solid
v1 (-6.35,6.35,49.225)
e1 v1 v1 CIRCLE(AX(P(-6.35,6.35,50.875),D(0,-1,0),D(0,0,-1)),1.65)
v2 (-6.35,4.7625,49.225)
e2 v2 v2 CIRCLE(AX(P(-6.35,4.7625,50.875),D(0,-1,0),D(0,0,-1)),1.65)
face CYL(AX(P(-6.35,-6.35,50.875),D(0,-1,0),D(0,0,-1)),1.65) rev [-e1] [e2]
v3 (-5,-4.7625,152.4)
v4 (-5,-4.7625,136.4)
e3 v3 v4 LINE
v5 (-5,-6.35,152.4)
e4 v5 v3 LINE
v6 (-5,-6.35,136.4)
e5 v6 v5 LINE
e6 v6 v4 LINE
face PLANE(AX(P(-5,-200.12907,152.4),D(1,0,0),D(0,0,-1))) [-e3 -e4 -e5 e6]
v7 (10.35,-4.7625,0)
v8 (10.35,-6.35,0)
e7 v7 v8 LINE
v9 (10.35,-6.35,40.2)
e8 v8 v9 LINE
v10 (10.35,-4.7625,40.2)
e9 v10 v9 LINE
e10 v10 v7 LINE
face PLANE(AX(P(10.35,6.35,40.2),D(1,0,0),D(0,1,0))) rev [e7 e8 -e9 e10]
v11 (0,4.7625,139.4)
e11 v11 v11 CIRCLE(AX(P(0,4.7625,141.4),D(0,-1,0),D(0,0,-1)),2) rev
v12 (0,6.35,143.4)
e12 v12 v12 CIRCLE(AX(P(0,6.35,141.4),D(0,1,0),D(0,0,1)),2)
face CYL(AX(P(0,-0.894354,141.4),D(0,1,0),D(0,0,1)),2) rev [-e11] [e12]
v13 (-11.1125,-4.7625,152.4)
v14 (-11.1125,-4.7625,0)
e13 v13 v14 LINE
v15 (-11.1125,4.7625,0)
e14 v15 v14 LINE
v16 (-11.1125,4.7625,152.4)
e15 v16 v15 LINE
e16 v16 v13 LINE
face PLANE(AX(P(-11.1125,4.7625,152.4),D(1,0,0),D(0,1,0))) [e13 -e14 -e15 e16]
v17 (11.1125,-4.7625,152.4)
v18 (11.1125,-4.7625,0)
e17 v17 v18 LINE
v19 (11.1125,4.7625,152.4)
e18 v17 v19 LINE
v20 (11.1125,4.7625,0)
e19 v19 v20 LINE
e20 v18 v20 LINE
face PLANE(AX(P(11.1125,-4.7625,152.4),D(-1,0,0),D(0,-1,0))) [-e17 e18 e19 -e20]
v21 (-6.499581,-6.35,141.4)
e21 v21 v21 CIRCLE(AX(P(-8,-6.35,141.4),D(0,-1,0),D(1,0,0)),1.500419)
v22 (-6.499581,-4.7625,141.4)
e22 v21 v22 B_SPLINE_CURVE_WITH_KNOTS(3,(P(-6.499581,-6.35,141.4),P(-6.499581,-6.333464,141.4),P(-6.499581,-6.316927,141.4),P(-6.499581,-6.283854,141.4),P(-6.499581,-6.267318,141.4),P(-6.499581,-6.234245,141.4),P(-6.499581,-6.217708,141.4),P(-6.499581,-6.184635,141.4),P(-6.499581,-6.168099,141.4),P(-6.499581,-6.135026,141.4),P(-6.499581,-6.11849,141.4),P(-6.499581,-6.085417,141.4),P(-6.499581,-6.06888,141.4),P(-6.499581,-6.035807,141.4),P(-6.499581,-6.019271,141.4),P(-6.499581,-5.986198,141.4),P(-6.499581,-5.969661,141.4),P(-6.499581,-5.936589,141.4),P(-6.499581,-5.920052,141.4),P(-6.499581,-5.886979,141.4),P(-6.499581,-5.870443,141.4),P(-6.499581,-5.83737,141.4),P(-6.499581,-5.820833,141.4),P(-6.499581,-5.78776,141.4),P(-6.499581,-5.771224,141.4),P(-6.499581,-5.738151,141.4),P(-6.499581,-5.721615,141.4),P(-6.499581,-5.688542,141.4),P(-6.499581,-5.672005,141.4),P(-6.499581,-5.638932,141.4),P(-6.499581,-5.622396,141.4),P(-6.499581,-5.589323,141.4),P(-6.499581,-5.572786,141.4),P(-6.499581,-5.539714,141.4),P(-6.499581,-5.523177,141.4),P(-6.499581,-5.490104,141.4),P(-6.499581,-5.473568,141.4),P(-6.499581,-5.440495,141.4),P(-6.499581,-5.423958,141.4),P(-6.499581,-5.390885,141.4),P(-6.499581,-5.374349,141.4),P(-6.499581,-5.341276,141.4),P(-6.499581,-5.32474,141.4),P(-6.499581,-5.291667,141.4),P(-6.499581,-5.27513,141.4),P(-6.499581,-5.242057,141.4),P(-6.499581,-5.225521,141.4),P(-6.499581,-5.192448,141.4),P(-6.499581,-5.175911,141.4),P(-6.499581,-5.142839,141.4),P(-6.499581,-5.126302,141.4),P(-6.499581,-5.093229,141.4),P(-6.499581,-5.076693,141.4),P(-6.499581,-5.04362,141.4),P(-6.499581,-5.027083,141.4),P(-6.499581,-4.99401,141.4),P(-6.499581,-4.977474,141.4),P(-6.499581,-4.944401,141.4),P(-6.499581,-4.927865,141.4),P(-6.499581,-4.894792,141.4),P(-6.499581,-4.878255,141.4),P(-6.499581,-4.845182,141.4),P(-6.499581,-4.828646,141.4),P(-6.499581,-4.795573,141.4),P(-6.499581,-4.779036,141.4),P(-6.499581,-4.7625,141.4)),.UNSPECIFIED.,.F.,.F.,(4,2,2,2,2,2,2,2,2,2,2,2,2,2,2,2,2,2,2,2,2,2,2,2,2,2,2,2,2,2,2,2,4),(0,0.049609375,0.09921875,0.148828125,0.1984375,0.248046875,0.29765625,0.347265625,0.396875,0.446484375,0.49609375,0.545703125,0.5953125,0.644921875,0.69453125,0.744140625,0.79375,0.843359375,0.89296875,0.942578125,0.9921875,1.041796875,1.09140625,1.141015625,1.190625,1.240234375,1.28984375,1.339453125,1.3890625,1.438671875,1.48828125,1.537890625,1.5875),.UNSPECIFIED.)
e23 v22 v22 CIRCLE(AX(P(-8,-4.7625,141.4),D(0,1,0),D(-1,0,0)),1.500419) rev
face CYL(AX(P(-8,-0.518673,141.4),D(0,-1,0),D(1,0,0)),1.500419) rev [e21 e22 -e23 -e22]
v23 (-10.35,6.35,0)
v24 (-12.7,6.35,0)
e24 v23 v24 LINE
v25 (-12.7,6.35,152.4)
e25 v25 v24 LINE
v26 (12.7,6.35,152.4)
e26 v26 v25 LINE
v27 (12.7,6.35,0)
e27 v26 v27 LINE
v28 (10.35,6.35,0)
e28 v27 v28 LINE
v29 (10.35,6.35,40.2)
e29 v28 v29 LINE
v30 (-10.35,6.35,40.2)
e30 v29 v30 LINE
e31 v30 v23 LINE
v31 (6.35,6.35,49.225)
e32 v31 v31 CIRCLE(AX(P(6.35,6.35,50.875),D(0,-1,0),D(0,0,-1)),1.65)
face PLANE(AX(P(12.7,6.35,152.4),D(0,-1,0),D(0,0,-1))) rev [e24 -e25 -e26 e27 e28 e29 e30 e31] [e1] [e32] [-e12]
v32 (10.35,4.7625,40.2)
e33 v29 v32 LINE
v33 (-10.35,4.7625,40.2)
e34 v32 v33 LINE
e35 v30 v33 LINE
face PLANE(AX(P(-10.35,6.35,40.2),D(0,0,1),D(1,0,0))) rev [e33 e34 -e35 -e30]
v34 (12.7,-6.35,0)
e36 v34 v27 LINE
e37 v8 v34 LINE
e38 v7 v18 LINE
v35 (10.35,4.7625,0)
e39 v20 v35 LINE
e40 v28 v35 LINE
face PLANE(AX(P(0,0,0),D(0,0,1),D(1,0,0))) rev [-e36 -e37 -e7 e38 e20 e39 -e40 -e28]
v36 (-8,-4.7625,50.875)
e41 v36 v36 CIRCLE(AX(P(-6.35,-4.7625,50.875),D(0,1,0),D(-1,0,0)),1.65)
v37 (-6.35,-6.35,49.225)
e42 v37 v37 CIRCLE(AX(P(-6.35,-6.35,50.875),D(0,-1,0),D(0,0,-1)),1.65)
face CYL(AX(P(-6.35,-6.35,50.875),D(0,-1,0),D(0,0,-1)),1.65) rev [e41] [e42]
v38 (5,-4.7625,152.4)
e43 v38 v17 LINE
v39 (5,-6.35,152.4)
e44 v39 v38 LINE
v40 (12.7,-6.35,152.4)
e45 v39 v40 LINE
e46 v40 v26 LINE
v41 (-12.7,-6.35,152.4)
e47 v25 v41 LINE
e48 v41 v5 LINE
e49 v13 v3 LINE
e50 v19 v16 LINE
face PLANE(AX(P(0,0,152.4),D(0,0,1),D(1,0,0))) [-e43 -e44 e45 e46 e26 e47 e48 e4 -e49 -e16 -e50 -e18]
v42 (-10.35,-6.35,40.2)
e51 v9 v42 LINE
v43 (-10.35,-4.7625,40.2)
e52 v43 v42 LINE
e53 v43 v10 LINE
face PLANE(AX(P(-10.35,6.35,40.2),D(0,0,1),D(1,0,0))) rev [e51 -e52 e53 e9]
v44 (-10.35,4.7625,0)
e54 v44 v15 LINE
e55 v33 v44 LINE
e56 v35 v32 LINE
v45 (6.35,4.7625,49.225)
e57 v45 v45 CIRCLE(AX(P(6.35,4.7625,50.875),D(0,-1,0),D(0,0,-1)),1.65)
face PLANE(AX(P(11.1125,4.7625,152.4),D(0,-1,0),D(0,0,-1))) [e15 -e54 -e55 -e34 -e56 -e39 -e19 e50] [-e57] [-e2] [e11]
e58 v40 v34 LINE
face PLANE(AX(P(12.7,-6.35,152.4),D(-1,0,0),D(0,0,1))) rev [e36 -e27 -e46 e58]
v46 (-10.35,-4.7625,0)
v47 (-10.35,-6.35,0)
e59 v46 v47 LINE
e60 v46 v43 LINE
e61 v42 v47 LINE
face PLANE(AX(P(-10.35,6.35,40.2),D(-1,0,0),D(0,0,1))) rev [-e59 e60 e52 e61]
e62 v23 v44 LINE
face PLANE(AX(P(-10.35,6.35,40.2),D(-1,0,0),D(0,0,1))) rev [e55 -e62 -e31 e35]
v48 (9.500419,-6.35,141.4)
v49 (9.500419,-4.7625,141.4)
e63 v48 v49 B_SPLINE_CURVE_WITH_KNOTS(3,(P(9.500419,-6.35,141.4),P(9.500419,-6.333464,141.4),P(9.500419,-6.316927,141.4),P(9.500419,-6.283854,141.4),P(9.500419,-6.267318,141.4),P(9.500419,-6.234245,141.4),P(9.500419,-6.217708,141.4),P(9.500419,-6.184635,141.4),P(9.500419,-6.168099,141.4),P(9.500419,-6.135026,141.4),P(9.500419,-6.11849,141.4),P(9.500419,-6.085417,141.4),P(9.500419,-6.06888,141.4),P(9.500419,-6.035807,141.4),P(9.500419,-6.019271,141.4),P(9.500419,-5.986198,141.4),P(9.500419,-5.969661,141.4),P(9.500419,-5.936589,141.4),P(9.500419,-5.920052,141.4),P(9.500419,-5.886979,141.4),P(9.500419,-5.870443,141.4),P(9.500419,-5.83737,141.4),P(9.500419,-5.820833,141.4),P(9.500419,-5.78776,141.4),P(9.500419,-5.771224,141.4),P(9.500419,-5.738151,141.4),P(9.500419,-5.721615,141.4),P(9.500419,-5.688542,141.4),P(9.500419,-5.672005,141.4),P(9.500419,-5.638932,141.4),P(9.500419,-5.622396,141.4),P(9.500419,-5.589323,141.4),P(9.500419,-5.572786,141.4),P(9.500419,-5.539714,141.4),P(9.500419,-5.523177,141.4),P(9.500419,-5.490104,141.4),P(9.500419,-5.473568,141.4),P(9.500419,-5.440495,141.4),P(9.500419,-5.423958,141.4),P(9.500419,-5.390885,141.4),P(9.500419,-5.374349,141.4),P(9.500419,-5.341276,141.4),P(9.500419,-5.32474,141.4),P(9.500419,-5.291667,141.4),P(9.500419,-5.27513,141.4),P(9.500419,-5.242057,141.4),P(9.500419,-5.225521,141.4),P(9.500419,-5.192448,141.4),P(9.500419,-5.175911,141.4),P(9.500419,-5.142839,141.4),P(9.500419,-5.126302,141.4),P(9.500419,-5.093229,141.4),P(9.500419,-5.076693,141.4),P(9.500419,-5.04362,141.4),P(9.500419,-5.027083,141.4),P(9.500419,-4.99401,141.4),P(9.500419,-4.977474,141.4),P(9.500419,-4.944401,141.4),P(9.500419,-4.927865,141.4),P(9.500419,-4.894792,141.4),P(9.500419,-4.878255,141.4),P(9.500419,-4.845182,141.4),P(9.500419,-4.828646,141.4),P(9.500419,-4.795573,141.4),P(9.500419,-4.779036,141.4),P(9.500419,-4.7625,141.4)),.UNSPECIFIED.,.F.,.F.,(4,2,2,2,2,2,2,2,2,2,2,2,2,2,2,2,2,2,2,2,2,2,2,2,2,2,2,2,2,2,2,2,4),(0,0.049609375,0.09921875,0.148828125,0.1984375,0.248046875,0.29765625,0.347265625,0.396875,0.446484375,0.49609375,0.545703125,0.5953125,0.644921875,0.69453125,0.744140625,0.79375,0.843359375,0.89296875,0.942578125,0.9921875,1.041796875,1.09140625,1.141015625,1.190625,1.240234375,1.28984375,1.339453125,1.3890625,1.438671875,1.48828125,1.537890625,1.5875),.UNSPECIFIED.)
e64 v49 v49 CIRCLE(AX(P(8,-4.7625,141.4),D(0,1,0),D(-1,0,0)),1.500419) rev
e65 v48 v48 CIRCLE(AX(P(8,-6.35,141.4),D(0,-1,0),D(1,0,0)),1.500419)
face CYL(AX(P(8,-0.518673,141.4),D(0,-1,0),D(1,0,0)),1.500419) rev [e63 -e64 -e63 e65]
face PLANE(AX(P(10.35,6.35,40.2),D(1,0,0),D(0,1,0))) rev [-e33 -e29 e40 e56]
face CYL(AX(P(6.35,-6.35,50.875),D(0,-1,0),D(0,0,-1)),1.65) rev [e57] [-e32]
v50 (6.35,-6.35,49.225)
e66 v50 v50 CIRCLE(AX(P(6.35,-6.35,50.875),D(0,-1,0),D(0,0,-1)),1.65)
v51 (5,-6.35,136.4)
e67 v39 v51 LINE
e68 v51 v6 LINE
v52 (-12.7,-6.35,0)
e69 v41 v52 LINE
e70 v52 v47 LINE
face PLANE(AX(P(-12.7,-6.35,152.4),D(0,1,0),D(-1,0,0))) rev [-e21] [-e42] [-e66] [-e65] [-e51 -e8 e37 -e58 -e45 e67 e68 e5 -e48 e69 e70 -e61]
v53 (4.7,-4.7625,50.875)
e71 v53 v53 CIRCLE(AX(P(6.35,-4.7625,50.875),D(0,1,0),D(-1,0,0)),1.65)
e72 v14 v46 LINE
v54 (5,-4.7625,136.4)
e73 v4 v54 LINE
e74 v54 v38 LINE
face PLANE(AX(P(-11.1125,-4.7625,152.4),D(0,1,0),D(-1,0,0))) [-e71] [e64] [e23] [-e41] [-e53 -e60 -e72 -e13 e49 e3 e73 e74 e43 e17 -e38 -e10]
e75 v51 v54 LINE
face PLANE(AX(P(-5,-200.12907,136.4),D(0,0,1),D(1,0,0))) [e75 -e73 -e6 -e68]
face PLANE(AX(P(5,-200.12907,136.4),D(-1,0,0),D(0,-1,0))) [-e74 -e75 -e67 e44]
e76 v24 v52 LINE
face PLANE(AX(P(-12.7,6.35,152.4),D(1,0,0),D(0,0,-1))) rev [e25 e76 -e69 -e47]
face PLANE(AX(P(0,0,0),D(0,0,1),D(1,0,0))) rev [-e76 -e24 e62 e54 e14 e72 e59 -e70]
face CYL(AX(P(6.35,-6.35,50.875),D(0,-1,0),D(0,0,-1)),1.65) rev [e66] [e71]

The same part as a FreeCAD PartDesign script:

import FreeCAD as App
import Part
import Sketcher
Q = App.Units.Quantity


def add_polygon(sketch, points):
    """Adds a closed chain of lines whose ends are joined by coincident constraints."""
    first, n = sketch.GeometryCount, len(points)
    for a, b in zip(points, points[1:] + points[:1]):
        sketch.addGeometry(Part.LineSegment(App.Vector(*a, 0), App.Vector(*b, 0)), False)
    for i in range(n):
        sketch.addConstraint(Sketcher.Constraint("Coincident", first + i, 2, first + (i + 1) % n, 1))

doc = App.newDocument("Part")
body = doc.addObject("PartDesign::Body", "Body")

# Sketch on XY plane
sketch1 = body.newObject("Sketcher::SketchObject", "Sketch")
sketch1.AttachmentSupport = (doc.getObject("XY_Plane"), [""])
sketch1.MapMode = "FlatFace"
add_polygon(sketch1, [(-12.7, 6.35), (-12.7, -6.35), (12.7, -6.35), (12.7, 6.35)])  # lines 0-3
add_polygon(sketch1, [(11.1125, -4.7625), (-11.1125, -4.7625), (-11.1125, 4.7625), (11.1125, 4.7625)])  # lines 4-7
sketch1.addConstraint(Sketcher.Constraint("Vertical", 0))
sketch1.addConstraint(Sketcher.Constraint("Horizontal", 1))
sketch1.addConstraint(Sketcher.Constraint("Vertical", 2))
sketch1.addConstraint(Sketcher.Constraint("Horizontal", 3))
sketch1.addConstraint(Sketcher.Constraint("Horizontal", 4))
sketch1.addConstraint(Sketcher.Constraint("Vertical", 5))
sketch1.addConstraint(Sketcher.Constraint("Horizontal", 6))
sketch1.addConstraint(Sketcher.Constraint("Vertical", 7))
sketch1.addConstraint(Sketcher.Constraint("Symmetric", 0, 2, 2, 2, -1, 1))
sketch1.addConstraint(Sketcher.Constraint("Symmetric", 4, 2, 6, 2, -1, 1))
sketch1.addConstraint(Sketcher.Constraint("DistanceX", 1, 1, 1, 2, Q("1 in")))
sketch1.addConstraint(Sketcher.Constraint("DistanceY", 0, 2, 0, 1, Q("0.5 in")))
sketch1.addConstraint(Sketcher.Constraint("DistanceX", 4, 2, 4, 1, Q("0.875 in")))
sketch1.addConstraint(Sketcher.Constraint("DistanceY", 5, 1, 5, 2, Q("0.375 in")))
pad1 = body.newObject("PartDesign::Pad", "Pad")
pad1.Profile = sketch1
pad1.Length = Q("6 in")

# Sketch on XZ plane
sketch2 = body.newObject("Sketcher::SketchObject", "Sketch001")
sketch2.AttachmentSupport = (doc.getObject("XZ_Plane"), [""])
sketch2.MapMode = "FlatFace"
sketch2.AttachmentOffset = App.Placement(App.Vector(0, 0, -0.25 * 25.4), App.Rotation())
sketch2.addGeometry(Part.Circle(App.Vector(0, 141.4, 0), App.Vector(0, 0, 1), 2), False)
sketch2.addConstraint(Sketcher.Constraint("PointOnObject", 0, 3, -2))
sketch2.addConstraint(Sketcher.Constraint("Diameter", 0, Q("4 mm")))
sketch2.addConstraint(Sketcher.Constraint("DistanceY", -1, 1, 0, 3, Q("141.4 mm")))
pocket1 = body.newObject("PartDesign::Pocket", "Pocket")
pocket1.Profile = sketch2
pocket1.Length = Q("0.0625 in")
pocket1.Reversed = True

# Sketch on XZ plane
sketch3 = body.newObject("Sketcher::SketchObject", "Sketch002")
sketch3.AttachmentSupport = (doc.getObject("XZ_Plane"), [""])
sketch3.MapMode = "FlatFace"
sketch3.AttachmentOffset = App.Placement(App.Vector(0, 0, 0.25 * 25.4), App.Rotation())
sketch3.addGeometry(Part.Circle(App.Vector(-8, 141.4, 0), App.Vector(0, 0, 1), 1.500419), False)
sketch3.addGeometry(Part.Circle(App.Vector(0, 149.4, 0), App.Vector(0, 0, 1), 1.500419), False)
sketch3.addGeometry(Part.Circle(App.Vector(8, 141.4, 0), App.Vector(0, 0, 1), 1.500419), False)
sketch3.addConstraint(Sketcher.Constraint("Equal", 0, 1))
sketch3.addConstraint(Sketcher.Constraint("Equal", 1, 2))
sketch3.addConstraint(Sketcher.Constraint("Symmetric", 0, 3, 2, 3, -2))
sketch3.addConstraint(Sketcher.Constraint("PointOnObject", 1, 3, -2))
sketch3.addConstraint(Sketcher.Constraint("Diameter", 0, Q("3.000839 mm")))
sketch3.addConstraint(Sketcher.Constraint("DistanceX", 0, 3, -1, 1, Q("8 mm")))
sketch3.addConstraint(Sketcher.Constraint("DistanceY", -1, 1, 0, 3, Q("141.4 mm")))
sketch3.addConstraint(Sketcher.Constraint("DistanceY", -1, 1, 1, 3, Q("149.4 mm")))
pocket2 = body.newObject("PartDesign::Pocket", "Pocket001")
pocket2.Profile = sketch3
pocket2.Length = Q("0.0625 in")

# Sketch on XZ plane
sketch4 = body.newObject("Sketcher::SketchObject", "Sketch003")
sketch4.AttachmentSupport = (doc.getObject("XZ_Plane"), [""])
sketch4.MapMode = "FlatFace"
sketch4.AttachmentOffset = App.Placement(App.Vector(0, 0, 0.25 * 25.4), App.Rotation())
add_polygon(sketch4, [(-5, 136.4), (5, 136.4), (5, 1102.946468), (-5, 1102.946468)])  # lines 0-3
sketch4.addConstraint(Sketcher.Constraint("Horizontal", 0))
sketch4.addConstraint(Sketcher.Constraint("Vertical", 1))
sketch4.addConstraint(Sketcher.Constraint("Horizontal", 2))
sketch4.addConstraint(Sketcher.Constraint("Vertical", 3))
sketch4.addConstraint(Sketcher.Constraint("DistanceX", 0, 1, 0, 2, Q("10 mm")))
sketch4.addConstraint(Sketcher.Constraint("DistanceY", 1, 1, 1, 2, Q("966.546468 mm")))
sketch4.addConstraint(Sketcher.Constraint("DistanceX", -1, 1, 0, 2, Q("5 mm")))
sketch4.addConstraint(Sketcher.Constraint("DistanceY", -1, 1, 0, 2, Q("136.4 mm")))
pocket3 = body.newObject("PartDesign::Pocket", "Pocket002")
pocket3.Profile = sketch4
pocket3.Type = "TwoLengths"
pocket3.Length = 154.454684
pocket3.Length2 = Q("0.1 in")
pocket3.Reversed = True

# Sketch on XZ plane
sketch5 = body.newObject("Sketcher::SketchObject", "Sketch004")
sketch5.AttachmentSupport = (doc.getObject("XZ_Plane"), [""])
sketch5.MapMode = "FlatFace"
sketch5.AttachmentOffset = App.Placement(App.Vector(0, 0, 0.25 * 25.4), App.Rotation())
add_polygon(sketch5, [(-10.35, 40.2), (-10.35, 0), (10.35, 0), (10.35, 40.2)])  # lines 0-3
sketch5.addConstraint(Sketcher.Constraint("Vertical", 0))
sketch5.addConstraint(Sketcher.Constraint("Horizontal", 1))
sketch5.addConstraint(Sketcher.Constraint("Vertical", 2))
sketch5.addConstraint(Sketcher.Constraint("Horizontal", 3))
sketch5.addConstraint(Sketcher.Constraint("Symmetric", 0, 2, 1, 2, -1, 1))
sketch5.addConstraint(Sketcher.Constraint("DistanceX", 1, 1, 1, 2, Q("20.7 mm")))
sketch5.addConstraint(Sketcher.Constraint("DistanceY", 0, 2, 0, 1, Q("40.2 mm")))
pocket4 = body.newObject("PartDesign::Pocket", "Pocket003")
pocket4.Profile = sketch5
pocket4.Type = "ThroughAll"

# Sketch on XZ plane
sketch6 = body.newObject("Sketcher::SketchObject", "Sketch005")
sketch6.AttachmentSupport = (doc.getObject("XZ_Plane"), [""])
sketch6.MapMode = "FlatFace"
sketch6.AttachmentOffset = App.Placement(App.Vector(0, 0, 0.25 * 25.4), App.Rotation())
sketch6.addGeometry(Part.Circle(App.Vector(6.35, 50.875, 0), App.Vector(0, 0, 1), 1.65), False)
sketch6.addGeometry(Part.Circle(App.Vector(-6.35, 50.875, 0), App.Vector(0, 0, 1), 1.65), False)
sketch6.addConstraint(Sketcher.Constraint("Equal", 0, 1))
sketch6.addConstraint(Sketcher.Constraint("Symmetric", 0, 3, 1, 3, -2))
sketch6.addConstraint(Sketcher.Constraint("DistanceX", 1, 3, 0, 3, Q("0.5 in")))
sketch6.addConstraint(Sketcher.Constraint("Diameter", 0, Q("3.3 mm")))
sketch6.addConstraint(Sketcher.Constraint("DistanceY", -1, 1, 0, 3, Q("50.875 mm")))
doc.recompute()
hole = body.newObject("PartDesign::Hole", "Hole")
hole.Profile = sketch6
hole.ThreadType = "None"
hole.Diameter = 3.3
hole.DepthType = "ThroughAll"

doc.recompute()
